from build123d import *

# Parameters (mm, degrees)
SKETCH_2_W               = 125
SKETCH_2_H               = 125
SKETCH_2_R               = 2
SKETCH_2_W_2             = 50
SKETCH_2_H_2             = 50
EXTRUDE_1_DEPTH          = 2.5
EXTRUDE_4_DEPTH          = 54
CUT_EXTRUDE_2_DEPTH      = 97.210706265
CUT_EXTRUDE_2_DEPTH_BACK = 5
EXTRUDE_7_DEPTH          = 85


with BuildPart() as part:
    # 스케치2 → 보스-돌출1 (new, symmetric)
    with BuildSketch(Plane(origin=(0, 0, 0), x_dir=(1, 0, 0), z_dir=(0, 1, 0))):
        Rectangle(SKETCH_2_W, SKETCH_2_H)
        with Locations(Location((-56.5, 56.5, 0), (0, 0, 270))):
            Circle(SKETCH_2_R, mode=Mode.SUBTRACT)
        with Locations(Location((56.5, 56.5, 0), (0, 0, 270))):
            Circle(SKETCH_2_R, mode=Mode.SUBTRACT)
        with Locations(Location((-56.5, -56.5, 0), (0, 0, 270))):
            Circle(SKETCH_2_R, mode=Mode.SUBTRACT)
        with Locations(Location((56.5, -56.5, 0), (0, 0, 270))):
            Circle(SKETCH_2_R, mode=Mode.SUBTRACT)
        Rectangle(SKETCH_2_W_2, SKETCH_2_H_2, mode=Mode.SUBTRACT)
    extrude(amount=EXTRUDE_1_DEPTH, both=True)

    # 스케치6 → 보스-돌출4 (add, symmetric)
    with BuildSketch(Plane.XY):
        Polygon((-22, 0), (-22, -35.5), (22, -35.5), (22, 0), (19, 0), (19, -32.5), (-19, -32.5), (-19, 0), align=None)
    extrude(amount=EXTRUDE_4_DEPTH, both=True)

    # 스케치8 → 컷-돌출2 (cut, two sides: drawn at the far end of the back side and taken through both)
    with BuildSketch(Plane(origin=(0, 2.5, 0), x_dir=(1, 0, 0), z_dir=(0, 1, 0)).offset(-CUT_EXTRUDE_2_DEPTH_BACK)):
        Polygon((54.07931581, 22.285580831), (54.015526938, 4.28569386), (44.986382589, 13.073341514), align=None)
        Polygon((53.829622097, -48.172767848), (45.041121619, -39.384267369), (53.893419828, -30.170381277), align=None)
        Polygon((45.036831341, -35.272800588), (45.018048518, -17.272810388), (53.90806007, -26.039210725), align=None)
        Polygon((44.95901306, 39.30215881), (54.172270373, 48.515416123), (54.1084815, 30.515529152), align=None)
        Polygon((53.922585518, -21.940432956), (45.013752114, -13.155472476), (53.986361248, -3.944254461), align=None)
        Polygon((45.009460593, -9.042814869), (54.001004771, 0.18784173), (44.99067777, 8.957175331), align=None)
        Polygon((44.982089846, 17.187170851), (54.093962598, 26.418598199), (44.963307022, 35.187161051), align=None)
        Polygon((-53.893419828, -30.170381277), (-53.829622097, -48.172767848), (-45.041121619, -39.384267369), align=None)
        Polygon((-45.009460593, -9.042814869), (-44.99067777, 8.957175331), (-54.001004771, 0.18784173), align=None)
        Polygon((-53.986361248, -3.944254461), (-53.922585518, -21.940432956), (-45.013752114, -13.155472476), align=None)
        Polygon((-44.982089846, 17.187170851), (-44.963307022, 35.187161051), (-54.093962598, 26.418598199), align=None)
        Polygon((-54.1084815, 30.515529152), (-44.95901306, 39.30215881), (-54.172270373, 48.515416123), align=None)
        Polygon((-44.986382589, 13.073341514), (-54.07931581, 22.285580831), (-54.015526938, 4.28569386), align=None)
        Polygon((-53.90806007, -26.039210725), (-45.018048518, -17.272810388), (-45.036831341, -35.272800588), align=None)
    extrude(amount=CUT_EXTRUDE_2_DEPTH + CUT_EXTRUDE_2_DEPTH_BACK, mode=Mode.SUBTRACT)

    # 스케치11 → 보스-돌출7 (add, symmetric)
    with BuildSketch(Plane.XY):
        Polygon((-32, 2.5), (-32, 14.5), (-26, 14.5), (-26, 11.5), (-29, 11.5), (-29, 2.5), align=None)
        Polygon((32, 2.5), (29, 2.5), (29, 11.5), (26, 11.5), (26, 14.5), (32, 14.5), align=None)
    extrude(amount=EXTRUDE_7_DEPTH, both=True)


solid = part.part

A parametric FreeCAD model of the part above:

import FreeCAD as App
import Part
import Sketcher


def add_polygon(sketch, points):
    """Adds a closed chain of lines whose ends are joined by coincident constraints."""
    first, n = sketch.GeometryCount, len(points)
    for a, b in zip(points, points[1:] + points[:1]):
        sketch.addGeometry(Part.LineSegment(App.Vector(*a, 0), App.Vector(*b, 0)), False)
    for i in range(n):
        sketch.addConstraint(Sketcher.Constraint("Coincident", first + i, 2, first + (i + 1) % n, 1))

doc = App.newDocument("Part")
body = doc.addObject("PartDesign::Body", "Body")

sketch1 = doc.addObject("Sketcher::SketchObject", "Sketch")
body.addObject(sketch1)
sketch1.AttachmentSupport = (doc.XZ_Plane, [""])
sketch1.MapMode = "FlatFace"
add_polygon(sketch1, [(-62.5, -62.5), (-62.5, 62.5), (62.5, 62.5), (62.5, -62.5)])
sketch1.addGeometry(Part.Circle(App.Vector(-56.5, 56.5, 0), App.Vector(0, 0, 1), 2), False)
sketch1.addGeometry(Part.Circle(App.Vector(56.5, 56.5, 0), App.Vector(0, 0, 1), 2), False)
sketch1.addGeometry(Part.Circle(App.Vector(-56.5, -56.5, 0), App.Vector(0, 0, 1), 2), False)
add_polygon(sketch1, [(25, 25), (-25, 25), (-25, -25), (25, -25)])
sketch1.addGeometry(Part.Circle(App.Vector(56.5, -56.5, 0), App.Vector(0, 0, 1), 2), False)
sketch1.addConstraint(Sketcher.Constraint("Vertical", 0))
sketch1.addConstraint(Sketcher.Constraint("Horizontal", 1))
sketch1.addConstraint(Sketcher.Constraint("Vertical", 2))
sketch1.addConstraint(Sketcher.Constraint("Horizontal", 3))
sketch1.addConstraint(Sketcher.Constraint("Horizontal", 7))
sketch1.addConstraint(Sketcher.Constraint("Vertical", 8))
sketch1.addConstraint(Sketcher.Constraint("Horizontal", 9))
sketch1.addConstraint(Sketcher.Constraint("Vertical", 10))
sketch1.addConstraint(Sketcher.Constraint("Equal", 4, 5))
sketch1.addConstraint(Sketcher.Constraint("Equal", 5, 6))
sketch1.addConstraint(Sketcher.Constraint("Equal", 6, 11))
sketch1.addConstraint(Sketcher.Constraint("Symmetric", 5, 3, 6, 3, -1, 1))
sketch1.addConstraint(Sketcher.Constraint("Symmetric", 4, 3, 11, 3, -1, 1))
sketch1.addConstraint(Sketcher.Constraint("Symmetric", 0, 2, 2, 2, -1, 1))
sketch1.addConstraint(Sketcher.Constraint("Symmetric", 7, 2, 9, 2, -1, 1))
sketch1.addConstraint(Sketcher.Constraint("Symmetric", 4, 3, 5, 3, -2))
sketch1.addConstraint(Sketcher.Constraint("Equal", 3, 0))
sketch1.addConstraint(Sketcher.Constraint("Equal", 9, 8))
sketch1.addConstraint(Sketcher.Constraint("Diameter", 4, 4.0))
sketch1.addConstraint(Sketcher.Constraint("DistanceX", 1, 1, 1, 2, 125.0))
sketch1.addConstraint(Sketcher.Constraint("DistanceX", 7, 2, 7, 1, 50.0))
sketch1.addConstraint(Sketcher.Constraint("DistanceX", 4, 3, 5, 3, 113.0))
sketch1.addConstraint(Sketcher.Constraint("DistanceY", 6, 3, 4, 3, 113.0))
pad1 = doc.addObject("PartDesign::Pad", "Pad")
body.addObject(pad1)
pad1.Profile = sketch1
pad1.Length = 5
pad1.Midplane = True

sketch2 = doc.addObject("Sketcher::SketchObject", "Sketch001")
body.addObject(sketch2)
sketch2.AttachmentSupport = (doc.XY_Plane, [""])
sketch2.MapMode = "FlatFace"
add_polygon(sketch2, [(-22, 0), (-22, -35.5), (22, -35.5), (22, 0), (19, 0), (19, -32.5), (-19, -32.5), (-19, 0)])
sketch2.addConstraint(Sketcher.Constraint("Vertical", 0))
sketch2.addConstraint(Sketcher.Constraint("Horizontal", 1))
sketch2.addConstraint(Sketcher.Constraint("Vertical", 2))
sketch2.addConstraint(Sketcher.Constraint("Horizontal", 3))
sketch2.addConstraint(Sketcher.Constraint("Vertical", 4))
sketch2.addConstraint(Sketcher.Constraint("Horizontal", 5))
sketch2.addConstraint(Sketcher.Constraint("Vertical", 6))
sketch2.addConstraint(Sketcher.Constraint("Horizontal", 7))
sketch2.addConstraint(Sketcher.Constraint("Symmetric", 3, 2, 6, 2, -1, 1))
sketch2.addConstraint(Sketcher.Constraint("Symmetric", 2, 2, 7, 2, -2))
sketch2.addConstraint(Sketcher.Constraint("DistanceX", 1, 1, 1, 2, 44.0))
sketch2.addConstraint(Sketcher.Constraint("DistanceX", 3, 2, 3, 1, 3.0))
sketch2.addConstraint(Sketcher.Constraint("DistanceY", 0, 2, 0, 1, 35.5))
sketch2.addConstraint(Sketcher.Constraint("DistanceY", 4, 2, 4, 1, 32.5))
pad2 = doc.addObject("PartDesign::Pad", "Pad001")
body.addObject(pad2)
pad2.Profile = sketch2
pad2.Length = 108
pad2.Midplane = True

sketch3 = doc.addObject("Sketcher::SketchObject", "Sketch002")
body.addObject(sketch3)
sketch3.AttachmentSupport = (doc.XZ_Plane, [""])
sketch3.MapMode = "FlatFace"
sketch3.AttachmentOffset = App.Placement(App.Vector(0, 0, -2.5), App.Rotation())
add_polygon(sketch3, [(54, -4), (54, -22), (45, -13)])
add_polygon(sketch3, [(45, 39), (54, 48), (54, 30)])
add_polygon(sketch3, [(45, 17), (45, 35), (54, 26)])
add_polygon(sketch3, [(54, -49), (45, -39), (54, -31)])
add_polygon(sketch3, [(45, 13), (54, 22), (54, 4)])
add_polygon(sketch3, [(45, 9), (54, 0), (45, -9)])
add_polygon(sketch3, [(45, -17), (54, -26), (45, -35)])
add_polygon(sketch3, [(-54, 30), (-54, 48), (-45, 39)])
add_polygon(sketch3, [(-45, 9), (-45, -9), (-54, 0)])
add_polygon(sketch3, [(-54, 4), (-54, 22), (-45, 13)])
add_polygon(sketch3, [(-45, -17), (-45, -35), (-54, -26)])
add_polygon(sketch3, [(-54, -31), (-45, -39), (-54, -49)])
add_polygon(sketch3, [(-45, -13), (-54, -22), (-54, -4)])
add_polygon(sketch3, [(-45, 17), (-54, 26), (-45, 35)])
sketch3.addConstraint(Sketcher.Constraint("Symmetric", 3, 2, 21, 2, -2))
sketch3.addConstraint(Sketcher.Constraint("Symmetric", 5, 2, 22, 2, -2))
sketch3.addConstraint(Sketcher.Constraint("Symmetric", 4, 2, 23, 2, -2))
sketch3.addConstraint(Sketcher.Constraint("Symmetric", 16, 2, 24, 2, -2))
sketch3.addConstraint(Sketcher.Constraint("Symmetric", 15, 2, 25, 2, -2))
sketch3.addConstraint(Sketcher.Constraint("Symmetric", 17, 2, 26, 2, -2))
sketch3.addConstraint(Sketcher.Constraint("Symmetric", 12, 2, 27, 2, -2))
sketch3.addConstraint(Sketcher.Constraint("Symmetric", 14, 2, 28, 2, -2))
sketch3.addConstraint(Sketcher.Constraint("Symmetric", 13, 2, 29, 2, -2))
sketch3.addConstraint(Sketcher.Constraint("Symmetric", 19, 2, 30, 2, -2))
sketch3.addConstraint(Sketcher.Constraint("Symmetric", 18, 2, 31, 2, -2))
sketch3.addConstraint(Sketcher.Constraint("Symmetric", 20, 2, 32, 2, -2))
sketch3.addConstraint(Sketcher.Constraint("Symmetric", 9, 2, 33, 2, -2))
sketch3.addConstraint(Sketcher.Constraint("Symmetric", 11, 2, 34, 2, -2))
sketch3.addConstraint(Sketcher.Constraint("Symmetric", 10, 2, 35, 2, -2))
sketch3.addConstraint(Sketcher.Constraint("Symmetric", 0, 2, 36, 2, -2))
sketch3.addConstraint(Sketcher.Constraint("Symmetric", 2, 2, 37, 2, -2))
sketch3.addConstraint(Sketcher.Constraint("Symmetric", 1, 2, 38, 2, -2))
sketch3.addConstraint(Sketcher.Constraint("Symmetric", 7, 2, 39, 2, -2))
sketch3.addConstraint(Sketcher.Constraint("Symmetric", 6, 2, 40, 2, -2))
sketch3.addConstraint(Sketcher.Constraint("Symmetric", 8, 2, 41, 2, -2))
sketch3.addConstraint(Sketcher.Constraint("Parallel", 0, 4))
sketch3.addConstraint(Sketcher.Constraint("Parallel", 5, 7))
sketch3.addConstraint(Sketcher.Constraint("Perpendicular", 3, 9))
sketch3.addConstraint(Sketcher.Constraint("Parallel", 4, 11))
sketch3.addConstraint(Sketcher.Constraint("Parallel", 8, 12))
sketch3.addConstraint(Sketcher.Constraint("Parallel", 11, 13))
sketch3.addConstraint(Sketcher.Constraint("Parallel", 14, 15))
sketch3.addConstraint(Sketcher.Constraint("Parallel", 2, 16))
sketch3.addConstraint(Sketcher.Constraint("Parallel", 6, 17))
sketch3.addConstraint(Sketcher.Constraint("Parallel", 1, 18))
sketch3.addConstraint(Sketcher.Constraint("Parallel", 10, 19))
sketch3.addConstraint(Sketcher.Constraint("Parallel", 17, 20))
sketch3.addConstraint(Sketcher.Constraint("Parallel", 9, 22))
sketch3.addConstraint(Sketcher.Constraint("Equal", 0, 6))
sketch3.addConstraint(Sketcher.Constraint("Equal", 6, 11))
sketch3.addConstraint(Sketcher.Constraint("Equal", 11, 17))
sketch3.addConstraint(Sketcher.Constraint("Equal", 17, 20))
sketch3.addConstraint(Sketcher.Constraint("Distance", 0, 18.0))
sketch3.addConstraint(Sketcher.Constraint("Distance", 4, 18.0025))
sketch3.addConstraint(Sketcher.Constraint("DistanceY", -1, 1, 6, 2, 35.272801))
sketch3.addConstraint(Sketcher.Constraint("DistanceY", 18, 2, -1, 1, 26.418598))
sketch3.addConstraint(Sketcher.Constraint("DistanceX", 5, 2, 3, 2, 8.7885))
sketch3.addConstraint(Sketcher.Constraint("DistanceX", 5, 2, 4, 2, 8.852298))
sketch3.addConstraint(Sketcher.Constraint("DistanceY", 8, 2, 7, 2, 8.7664))
sketch3.addConstraint(Sketcher.Constraint("DistanceX", 1, 2, 10, 2, 9.122099))
sketch3.addConstraint(Sketcher.Constraint("DistanceX", 7, 2, 13, 2, 0.078301))
sketch3.addConstraint(Sketcher.Constraint("DistanceY", 1, 2, 15, 2, 12.8855))
sketch3.addConstraint(Sketcher.Constraint("DistanceX", 17, 2, 13, 2, 8.976901))
sketch3.addConstraint(Sketcher.Constraint("DistanceX", 31, 2, 29, 2, 0.107601))
sketch3.addConstraint(Sketcher.Constraint("Distance", 2, 12.599532))
sketch3.addConstraint(Sketcher.Constraint("Distance", 10, 12.685331))
sketch3.addConstraint(Sketcher.Constraint("Distance", 12, 12.511708))
sketch3.addConstraint(Sketcher.Constraint("Distance", 13, 17.996292))
sketch3.addConstraint(Sketcher.Constraint("Distance", 15, 12.886151))
sketch3.addConstraint(Sketcher.Constraint("Distance", 19, 12.659248))
sketch3.addConstraint(Sketcher.Constraint("DistanceY", 0, 2, -1, 1, 22.285581))
sketch3.addConstraint(Sketcher.Constraint("DistanceX", -1, 1, 4, 2, 53.89342))
sketch3.addConstraint(Sketcher.Constraint("DistanceY", -1, 1, 4, 2, 30.170381))
sketch3.addConstraint(Sketcher.Constraint("DistanceX", -1, 1, 6, 2, 45.036831))
sketch3.addConstraint(Sketcher.Constraint("DistanceY", 9, 2, -1, 1, 39.302159))
sketch3.addConstraint(Sketcher.Constraint("DistanceX", -1, 1, 10, 2, 54.108482))
sketch3.addConstraint(Sketcher.Constraint("DistanceY", 12, 2, 4, 2, 8.229948))
pocket1 = doc.addObject("PartDesign::Pocket", "Pocket")
body.addObject(pocket1)
pocket1.Profile = sketch3
pocket1.Type = "ThroughAll"
pocket1.Midplane = True

sketch4 = doc.addObject("Sketcher::SketchObject", "Sketch003")
body.addObject(sketch4)
sketch4.AttachmentSupport = (doc.XY_Plane, [""])
sketch4.MapMode = "FlatFace"
add_polygon(sketch4, [(-32, 14.5), (-32, 2.5), (-29, 2.5), (-29, 11.5), (-26, 11.5), (-26, 14.5)])
add_polygon(sketch4, [(29, 2.5), (32, 2.5), (32, 14.5), (26, 14.5), (26, 11.5), (29, 11.5)])
sketch4.addConstraint(Sketcher.Constraint("Vertical", 0))
sketch4.addConstraint(Sketcher.Constraint("Horizontal", 1))
sketch4.addConstraint(Sketcher.Constraint("Vertical", 2))
sketch4.addConstraint(Sketcher.Constraint("Horizontal", 3))
sketch4.addConstraint(Sketcher.Constraint("Vertical", 4))
sketch4.addConstraint(Sketcher.Constraint("Horizontal", 5))
sketch4.addConstraint(Sketcher.Constraint("Horizontal", 6))
sketch4.addConstraint(Sketcher.Constraint("Vertical", 7))
sketch4.addConstraint(Sketcher.Constraint("Horizontal", 8))
sketch4.addConstraint(Sketcher.Constraint("Vertical", 9))
sketch4.addConstraint(Sketcher.Constraint("Horizontal", 10))
sketch4.addConstraint(Sketcher.Constraint("Vertical", 11))
sketch4.addConstraint(Sketcher.Constraint("Symmetric", 0, 2, 6, 2, -2))
sketch4.addConstraint(Sketcher.Constraint("Symmetric", 4, 2, 8, 2, -2))
sketch4.addConstraint(Sketcher.Constraint("Symmetric", 2, 2, 10, 2, -2))
sketch4.addConstraint(Sketcher.Constraint("Equal", 1, 3))
sketch4.addConstraint(Sketcher.Constraint("Equal", 10, 4))
sketch4.addConstraint(Sketcher.Constraint("DistanceX", 1, 1, 1, 2, 3.0))
sketch4.addConstraint(Sketcher.Constraint("DistanceY", 0, 2, 0, 1, 12.0))
sketch4.addConstraint(Sketcher.Constraint("DistanceX", 0, 2, -1, 1, 32.0))
sketch4.addConstraint(Sketcher.Constraint("DistanceY", -1, 1, 0, 2, 2.5))
pad3 = doc.addObject("PartDesign::Pad", "Pad002")
body.addObject(pad3)
pad3.Profile = sketch4
pad3.Length = 170
pad3.Midplane = True

doc.recompute()
